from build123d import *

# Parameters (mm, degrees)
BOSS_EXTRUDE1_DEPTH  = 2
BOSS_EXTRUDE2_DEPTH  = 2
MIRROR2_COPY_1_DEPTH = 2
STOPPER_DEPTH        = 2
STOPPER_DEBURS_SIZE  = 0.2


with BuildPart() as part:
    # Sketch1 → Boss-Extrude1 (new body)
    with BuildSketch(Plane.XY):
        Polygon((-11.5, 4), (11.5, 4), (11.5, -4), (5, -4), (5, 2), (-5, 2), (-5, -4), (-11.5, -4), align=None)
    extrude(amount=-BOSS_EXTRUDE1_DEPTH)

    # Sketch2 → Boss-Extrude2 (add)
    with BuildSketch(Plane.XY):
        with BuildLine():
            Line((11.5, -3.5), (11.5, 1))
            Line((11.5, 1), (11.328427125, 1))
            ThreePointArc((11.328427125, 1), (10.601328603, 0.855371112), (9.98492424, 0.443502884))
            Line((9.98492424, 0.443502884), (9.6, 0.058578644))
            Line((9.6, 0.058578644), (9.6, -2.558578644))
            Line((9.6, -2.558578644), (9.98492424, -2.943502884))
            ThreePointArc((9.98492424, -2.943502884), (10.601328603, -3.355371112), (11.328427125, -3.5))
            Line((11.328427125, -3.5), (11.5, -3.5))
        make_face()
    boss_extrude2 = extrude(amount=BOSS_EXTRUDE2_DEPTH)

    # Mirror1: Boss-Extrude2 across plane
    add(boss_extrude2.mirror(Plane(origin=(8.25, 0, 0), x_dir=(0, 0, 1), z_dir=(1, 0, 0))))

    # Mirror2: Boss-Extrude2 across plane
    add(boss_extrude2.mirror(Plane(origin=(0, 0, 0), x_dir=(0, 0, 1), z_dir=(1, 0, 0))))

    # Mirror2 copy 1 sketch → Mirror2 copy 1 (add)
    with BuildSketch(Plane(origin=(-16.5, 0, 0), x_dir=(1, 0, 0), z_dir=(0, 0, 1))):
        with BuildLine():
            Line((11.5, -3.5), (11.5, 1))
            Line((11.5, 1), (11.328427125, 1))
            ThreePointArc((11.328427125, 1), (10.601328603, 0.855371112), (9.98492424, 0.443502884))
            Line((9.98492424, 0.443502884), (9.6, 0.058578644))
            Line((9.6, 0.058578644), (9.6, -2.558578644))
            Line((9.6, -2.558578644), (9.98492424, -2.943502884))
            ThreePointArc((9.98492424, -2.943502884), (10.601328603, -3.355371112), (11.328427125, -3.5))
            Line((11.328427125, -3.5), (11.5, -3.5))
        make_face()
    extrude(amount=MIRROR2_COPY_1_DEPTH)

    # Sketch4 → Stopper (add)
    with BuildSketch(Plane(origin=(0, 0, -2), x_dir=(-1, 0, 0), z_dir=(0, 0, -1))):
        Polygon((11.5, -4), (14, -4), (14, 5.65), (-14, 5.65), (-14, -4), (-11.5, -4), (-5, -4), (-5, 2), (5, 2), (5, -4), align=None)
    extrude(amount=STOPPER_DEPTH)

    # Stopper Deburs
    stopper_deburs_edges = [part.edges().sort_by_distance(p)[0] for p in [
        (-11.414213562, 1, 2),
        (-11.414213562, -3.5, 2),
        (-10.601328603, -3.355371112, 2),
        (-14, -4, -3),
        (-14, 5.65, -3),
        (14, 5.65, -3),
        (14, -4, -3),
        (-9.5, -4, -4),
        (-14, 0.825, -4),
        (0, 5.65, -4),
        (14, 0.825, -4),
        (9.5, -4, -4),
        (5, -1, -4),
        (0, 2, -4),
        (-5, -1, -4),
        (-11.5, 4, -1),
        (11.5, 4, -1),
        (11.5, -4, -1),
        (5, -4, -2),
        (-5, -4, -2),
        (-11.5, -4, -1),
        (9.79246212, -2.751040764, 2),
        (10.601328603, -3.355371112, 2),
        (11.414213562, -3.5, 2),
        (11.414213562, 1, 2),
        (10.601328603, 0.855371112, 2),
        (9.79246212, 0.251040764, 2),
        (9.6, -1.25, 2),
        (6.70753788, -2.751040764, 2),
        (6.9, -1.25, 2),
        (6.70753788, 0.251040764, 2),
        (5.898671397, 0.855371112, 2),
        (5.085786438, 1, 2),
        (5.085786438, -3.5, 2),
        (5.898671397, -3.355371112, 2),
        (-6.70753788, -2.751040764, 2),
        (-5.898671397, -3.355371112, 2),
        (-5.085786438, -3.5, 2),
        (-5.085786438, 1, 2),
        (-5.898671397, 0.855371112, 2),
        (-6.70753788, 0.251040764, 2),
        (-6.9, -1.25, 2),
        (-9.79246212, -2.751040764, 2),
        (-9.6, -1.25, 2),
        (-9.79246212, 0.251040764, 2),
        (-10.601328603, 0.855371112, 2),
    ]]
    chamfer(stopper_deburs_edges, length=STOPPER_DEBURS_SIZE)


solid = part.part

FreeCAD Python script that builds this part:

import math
import FreeCAD as App
import Part
import Sketcher
Q = App.Units.Quantity


def edges_at(feature, points):
    """Names of the edges that pass closest to the given points."""
    edges = feature.Shape.Edges
    near = lambda p: min(range(len(edges)), key=lambda i: edges[i].distToShape(Part.Vertex(*p))[0])
    return sorted({f"Edge{near(p) + 1}" for p in points})


def add_polygon(sketch, points):
    """Adds a closed chain of lines whose ends are joined by coincident constraints."""
    first, n = sketch.GeometryCount, len(points)
    for a, b in zip(points, points[1:] + points[:1]):
        sketch.addGeometry(Part.LineSegment(App.Vector(*a, 0), App.Vector(*b, 0)), False)
    for i in range(n):
        sketch.addConstraint(Sketcher.Constraint("Coincident", first + i, 2, first + (i + 1) % n, 1))

doc = App.newDocument("Part")
params = doc.addObject("Spreadsheet::Sheet", "Params")
for row, (alias, value) in enumerate([
    ("sketch1_width", "23 mm"),
    ("sketch1_width2", "10 mm"),
    ("sketch1_height", "8 mm"),
    ("sketch1_height2", "6 mm"),
    ("pad1_length", "2 mm"),
    ("sketch2_radius", "1.9 mm"),
    ("sketch2_height", "4.5 mm"),
    ("pad2_length", "2 mm"),
    ("sketch3_radius", "1.9 mm"),
    ("sketch3_height", "4.5 mm"),
    ("pad3_length", "2 mm"),
    ("sketch4_width", "28 mm"),
    ("sketch4_width2", "9 mm"),
    ("sketch4_height", "6 mm"),
    ("sketch4_height2", "9.65 mm"),
    ("pad4_length", "2 mm"),
    ("chamfer_size", "0.2 mm"),
], start=1):
    params.set(f"A{row}", alias)
    params.set(f"B{row}", "=" + value)
    params.setAlias(f"B{row}", alias)

body = doc.addObject("PartDesign::Body", "Body")

sketch1 = doc.addObject("Sketcher::SketchObject", "Sketch")
body.addObject(sketch1)
sketch1.AttachmentSupport = (doc.XY_Plane, [""])
sketch1.MapMode = "FlatFace"
add_polygon(sketch1, [(12, 4), (-12, 4), (-12, -4), (-5, -4), (-5, 2), (5, 2), (5, -4), (12, -4)])
sketch1.addConstraint(Sketcher.Constraint("Horizontal", 0))
sketch1.addConstraint(Sketcher.Constraint("Vertical", 1))
sketch1.addConstraint(Sketcher.Constraint("Horizontal", 2))
sketch1.addConstraint(Sketcher.Constraint("Vertical", 3))
sketch1.addConstraint(Sketcher.Constraint("Horizontal", 4))
sketch1.addConstraint(Sketcher.Constraint("Vertical", 5))
sketch1.addConstraint(Sketcher.Constraint("Horizontal", 6))
sketch1.addConstraint(Sketcher.Constraint("Vertical", 7))
sketch1.addConstraint(Sketcher.Constraint("Symmetric", 0, 2, 6, 2, -1, 1))
sketch1.addConstraint(Sketcher.Constraint("Symmetric", 2, 2, 5, 2, -2))
sketch1.addConstraint(Sketcher.Constraint("DistanceX", 0, 2, 0, 1, Q("23 mm")))
sketch1.addConstraint(Sketcher.Constraint("DistanceX", 4, 1, 4, 2, Q("10 mm")))
sketch1.addConstraint(Sketcher.Constraint("DistanceY", 1, 2, 1, 1, Q("8 mm")))
sketch1.addConstraint(Sketcher.Constraint("DistanceY", 3, 1, 3, 2, Q("6 mm")))
sketch1.setExpression("Constraints[18]", "Params.sketch1_width")
sketch1.setExpression("Constraints[19]", "Params.sketch1_width2")
sketch1.setExpression("Constraints[20]", "Params.sketch1_height")
sketch1.setExpression("Constraints[21]", "Params.sketch1_height2")
pad1 = doc.addObject("PartDesign::Pad", "Pad")
body.addObject(pad1)
pad1.Profile = sketch1
pad1.setExpression("Length", "Params.pad1_length")
pad1.Reversed = True

sketch2 = doc.addObject("Sketcher::SketchObject", "Sketch001")
body.addObject(sketch2)
sketch2.AttachmentSupport = (doc.XY_Plane, [""])
sketch2.MapMode = "FlatFace"
sketch2.addGeometry(Part.LineSegment(App.Vector(11.5, -3.5, 0), App.Vector(11.5, 1, 0)), False)
sketch2.addGeometry(Part.LineSegment(App.Vector(11.5, 1, 0), App.Vector(11.33, 1, 0)), False)
sketch2.addGeometry(Part.ArcOfCircle(Part.Circle(App.Vector(11.33, -0.9, 0), App.Vector(0, 0, 1), 1.9), math.radians(90), math.radians(135)), False)
sketch2.addGeometry(Part.LineSegment(App.Vector(9.98, 0.44, 0), App.Vector(9.6, 0.06, 0)), False)
sketch2.addGeometry(Part.LineSegment(App.Vector(9.6, 0.06, 0), App.Vector(9.6, -2.56, 0)), False)
sketch2.addGeometry(Part.LineSegment(App.Vector(9.6, -2.56, 0), App.Vector(9.98, -2.94, 0)), False)
sketch2.addGeometry(Part.ArcOfCircle(Part.Circle(App.Vector(11.33, -1.6, 0), App.Vector(0, 0, 1), 1.9), math.radians(-135), math.radians(-90)), False)
sketch2.addGeometry(Part.LineSegment(App.Vector(11.33, -3.5, 0), App.Vector(11.5, -3.5, 0)), False)
sketch2.addConstraint(Sketcher.Constraint("Coincident", 0, 2, 1, 1))
sketch2.addConstraint(Sketcher.Constraint("Tangent", 1, 2, 2, 1))
sketch2.addConstraint(Sketcher.Constraint("Tangent", 2, 2, 3, 1))
sketch2.addConstraint(Sketcher.Constraint("Coincident", 3, 2, 4, 1))
sketch2.addConstraint(Sketcher.Constraint("Coincident", 4, 2, 5, 1))
sketch2.addConstraint(Sketcher.Constraint("Tangent", 5, 2, 6, 1))
sketch2.addConstraint(Sketcher.Constraint("Tangent", 6, 2, 7, 1))
sketch2.addConstraint(Sketcher.Constraint("Coincident", 7, 2, 0, 1))
sketch2.addConstraint(Sketcher.Constraint("Vertical", 0))
sketch2.addConstraint(Sketcher.Constraint("Horizontal", 1))
sketch2.addConstraint(Sketcher.Constraint("Vertical", 4))
sketch2.addConstraint(Sketcher.Constraint("Horizontal", 7))
sketch2.addConstraint(Sketcher.Constraint("Equal", 2, 6))
sketch2.addConstraint(Sketcher.Constraint("Perpendicular", 3, 5))
sketch2.addConstraint(Sketcher.Constraint("Vertical", 2, 3, 6, 3))
sketch2.addConstraint(Sketcher.Constraint("Vertical", 2, 2, 5, 2))
sketch2.addConstraint(Sketcher.Constraint("Radius", 2, Q("1.9 mm")))
sketch2.addConstraint(Sketcher.Constraint("DistanceY", 0, 1, 0, 2, Q("4.5 mm")))
sketch2.addConstraint(Sketcher.Constraint("DistanceY", -1, 1, 0, 2, Q("1 mm")))
sketch2.addConstraint(Sketcher.Constraint("DistanceX", -1, 1, 0, 2, Q("11.5 mm")))
sketch2.addConstraint(Sketcher.Constraint("DistanceX", -1, 1, 3, 2, Q("9.6 mm")))
sketch2.addConstraint(Sketcher.Constraint("DistanceX", 1, 2, 1, 1, Q("0.171573 mm")))
sketch2.setExpression("Constraints[16]", "Params.sketch2_radius")
sketch2.setExpression("Constraints[17]", "Params.sketch2_height")
pad2 = doc.addObject("PartDesign::Pad", "Pad001")
body.addObject(pad2)
pad2.Profile = sketch2
pad2.setExpression("Length", "Params.pad2_length")
doc.recompute()

datumplane = doc.addObject("PartDesign::Plane", "DatumPlane")
body.addObject(datumplane)
datumplane.AttachmentSupport = (doc.YZ_Plane, [""])
datumplane.MapMode = "FlatFace"
datumplane.AttachmentOffset = App.Placement(App.Vector(0, 0, 8.25), App.Rotation())
mirrored = doc.addObject("PartDesign::Mirrored", "Mirrored")
body.addObject(mirrored)
mirrored.Originals = [pad2]
mirrored.MirrorPlane = (datumplane, [""])
body.Tip = mirrored
doc.recompute()

mirrored2 = doc.addObject("PartDesign::Mirrored", "Mirrored001")
body.addObject(mirrored2)
mirrored2.Originals = [pad2]
mirrored2.MirrorPlane = (doc.YZ_Plane, [""])
body.Tip = mirrored2

sketch3 = doc.addObject("Sketcher::SketchObject", "Sketch002")
body.addObject(sketch3)
sketch3.AttachmentSupport = (doc.XY_Plane, [""])
sketch3.MapMode = "FlatFace"
sketch3.addGeometry(Part.LineSegment(App.Vector(-5, -3.5, 0), App.Vector(-5, 1, 0)), False)
sketch3.addGeometry(Part.LineSegment(App.Vector(-5, 1, 0), App.Vector(-5.17, 1, 0)), False)
sketch3.addGeometry(Part.ArcOfCircle(Part.Circle(App.Vector(-5.17, -0.9, 0), App.Vector(0, 0, 1), 1.9), math.radians(90), math.radians(135)), False)
sketch3.addGeometry(Part.LineSegment(App.Vector(-6.52, 0.44, 0), App.Vector(-6.9, 0.06, 0)), False)
sketch3.addGeometry(Part.LineSegment(App.Vector(-6.9, 0.06, 0), App.Vector(-6.9, -2.56, 0)), False)
sketch3.addGeometry(Part.LineSegment(App.Vector(-6.9, -2.56, 0), App.Vector(-6.52, -2.94, 0)), False)
sketch3.addGeometry(Part.ArcOfCircle(Part.Circle(App.Vector(-5.17, -1.6, 0), App.Vector(0, 0, 1), 1.9), math.radians(-135), math.radians(-90)), False)
sketch3.addGeometry(Part.LineSegment(App.Vector(-5.17, -3.5, 0), App.Vector(-5, -3.5, 0)), False)
sketch3.addConstraint(Sketcher.Constraint("Coincident", 0, 2, 1, 1))
sketch3.addConstraint(Sketcher.Constraint("Tangent", 1, 2, 2, 1))
sketch3.addConstraint(Sketcher.Constraint("Tangent", 2, 2, 3, 1))
sketch3.addConstraint(Sketcher.Constraint("Coincident", 3, 2, 4, 1))
sketch3.addConstraint(Sketcher.Constraint("Coincident", 4, 2, 5, 1))
sketch3.addConstraint(Sketcher.Constraint("Tangent", 5, 2, 6, 1))
sketch3.addConstraint(Sketcher.Constraint("Tangent", 6, 2, 7, 1))
sketch3.addConstraint(Sketcher.Constraint("Coincident", 7, 2, 0, 1))
sketch3.addConstraint(Sketcher.Constraint("Vertical", 0))
sketch3.addConstraint(Sketcher.Constraint("Horizontal", 1))
sketch3.addConstraint(Sketcher.Constraint("Vertical", 4))
sketch3.addConstraint(Sketcher.Constraint("Horizontal", 7))
sketch3.addConstraint(Sketcher.Constraint("Equal", 2, 6))
sketch3.addConstraint(Sketcher.Constraint("Perpendicular", 3, 5))
sketch3.addConstraint(Sketcher.Constraint("Vertical", 2, 3, 6, 3))
sketch3.addConstraint(Sketcher.Constraint("Vertical", 2, 2, 5, 2))
sketch3.addConstraint(Sketcher.Constraint("Radius", 2, Q("1.9 mm")))
sketch3.addConstraint(Sketcher.Constraint("DistanceY", 0, 1, 0, 2, Q("4.5 mm")))
sketch3.addConstraint(Sketcher.Constraint("DistanceX", 0, 2, -1, 1, Q("5 mm")))
sketch3.addConstraint(Sketcher.Constraint("DistanceY", -1, 1, 0, 2, Q("1 mm")))
sketch3.addConstraint(Sketcher.Constraint("DistanceX", 3, 2, -1, 1, Q("6.9 mm")))
sketch3.addConstraint(Sketcher.Constraint("DistanceX", 1, 2, 1, 1, Q("0.171573 mm")))
sketch3.setExpression("Constraints[16]", "Params.sketch3_radius")
sketch3.setExpression("Constraints[17]", "Params.sketch3_height")
pad3 = doc.addObject("PartDesign::Pad", "Pad002")
body.addObject(pad3)
pad3.Profile = sketch3
pad3.setExpression("Length", "Params.pad3_length")

sketch4 = doc.addObject("Sketcher::SketchObject", "Sketch003")
body.addObject(sketch4)
sketch4.AttachmentSupport = (doc.XY_Plane, [""])
sketch4.MapMode = "FlatFace"
sketch4.AttachmentOffset = App.Placement(App.Vector(0, 0, -2), App.Rotation())
add_polygon(sketch4, [(-14, -4), (-14, 6), (14, 6), (14, -4), (5, -4), (5, 2), (-5, 2), (-5, -4)])
sketch4.addConstraint(Sketcher.Constraint("Vertical", 0))
sketch4.addConstraint(Sketcher.Constraint("Horizontal", 1))
sketch4.addConstraint(Sketcher.Constraint("Vertical", 2))
sketch4.addConstraint(Sketcher.Constraint("Horizontal", 3))
sketch4.addConstraint(Sketcher.Constraint("Vertical", 4))
sketch4.addConstraint(Sketcher.Constraint("Horizontal", 5))
sketch4.addConstraint(Sketcher.Constraint("Vertical", 6))
sketch4.addConstraint(Sketcher.Constraint("Horizontal", 7))
sketch4.addConstraint(Sketcher.Constraint("Symmetric", 3, 2, 6, 2, -2))
sketch4.addConstraint(Sketcher.Constraint("Equal", 3, 7))
sketch4.addConstraint(Sketcher.Constraint("DistanceX", 1, 1, 1, 2, Q("28 mm")))
sketch4.addConstraint(Sketcher.Constraint("DistanceX", 3, 2, 3, 1, Q("9 mm")))
sketch4.addConstraint(Sketcher.Constraint("DistanceY", 4, 1, 4, 2, Q("6 mm")))
sketch4.addConstraint(Sketcher.Constraint("DistanceY", 2, 2, -1, 1, Q("4 mm")))
sketch4.addConstraint(Sketcher.Constraint("DistanceY", 0, 1, 0, 2, Q("9.65 mm")))
sketch4.setExpression("Constraints[18]", "Params.sketch4_width")
sketch4.setExpression("Constraints[19]", "Params.sketch4_width2")
sketch4.setExpression("Constraints[20]", "Params.sketch4_height")
sketch4.setExpression("Constraints[22]", "Params.sketch4_height2")
pad4 = doc.addObject("PartDesign::Pad", "Pad003")
body.addObject(pad4)
pad4.Profile = sketch4
pad4.setExpression("Length", "Params.pad4_length")
pad4.Reversed = True
doc.recompute()

chamfer = doc.addObject("PartDesign::Chamfer", "Chamfer")
body.addObject(chamfer)
chamfer.Base = (pad4, edges_at(pad4, [
    (-11.414, 1, 2),
    (-11.414, -3.5, 2),
    (-10.601, -3.355, 2),
    (-14, -4, -3),
    (-14, 5.65, -3),
    (14, 5.65, -3),
    (14, -4, -3),
    (-9.5, -4, -4),
    (-14, 0.825, -4),
    (0, 5.65, -4),
    (14, 0.825, -4),
    (9.5, -4, -4),
    (5, -1, -4),
    (0, 2, -4),
    (-5, -1, -4),
    (-11.5, 4, -1),
    (11.5, 4, -1),
    (11.5, -4, -1),
    (5, -4, -2),
    (-5, -4, -2),
    (-11.5, -4, -1),
    (9.792, -2.751, 2),
    (10.601, -3.355, 2),
    (11.414, -3.5, 2),
    (11.414, 1, 2),
    (10.601, 0.855, 2),
    (9.792, 0.251, 2),
    (9.6, -1.25, 2),
    (6.708, -2.751, 2),
    (6.9, -1.25, 2),
    (6.708, 0.251, 2),
    (5.899, 0.855, 2),
    (5.086, 1, 2),
    (5.086, -3.5, 2),
    (5.899, -3.355, 2),
    (-6.708, -2.751, 2),
    (-5.899, -3.355, 2),
    (-5.086, -3.5, 2),
    (-5.086, 1, 2),
    (-5.899, 0.855, 2),
    (-6.708, 0.251, 2),
    (-6.9, -1.25, 2),
    (-9.792, -2.751, 2),
    (-9.6, -1.25, 2),
    (-9.792, 0.251, 2),
    (-10.601, 0.855, 2),
]))
chamfer.setExpression("Size", "Params.chamfer_size")

doc.recompute()
